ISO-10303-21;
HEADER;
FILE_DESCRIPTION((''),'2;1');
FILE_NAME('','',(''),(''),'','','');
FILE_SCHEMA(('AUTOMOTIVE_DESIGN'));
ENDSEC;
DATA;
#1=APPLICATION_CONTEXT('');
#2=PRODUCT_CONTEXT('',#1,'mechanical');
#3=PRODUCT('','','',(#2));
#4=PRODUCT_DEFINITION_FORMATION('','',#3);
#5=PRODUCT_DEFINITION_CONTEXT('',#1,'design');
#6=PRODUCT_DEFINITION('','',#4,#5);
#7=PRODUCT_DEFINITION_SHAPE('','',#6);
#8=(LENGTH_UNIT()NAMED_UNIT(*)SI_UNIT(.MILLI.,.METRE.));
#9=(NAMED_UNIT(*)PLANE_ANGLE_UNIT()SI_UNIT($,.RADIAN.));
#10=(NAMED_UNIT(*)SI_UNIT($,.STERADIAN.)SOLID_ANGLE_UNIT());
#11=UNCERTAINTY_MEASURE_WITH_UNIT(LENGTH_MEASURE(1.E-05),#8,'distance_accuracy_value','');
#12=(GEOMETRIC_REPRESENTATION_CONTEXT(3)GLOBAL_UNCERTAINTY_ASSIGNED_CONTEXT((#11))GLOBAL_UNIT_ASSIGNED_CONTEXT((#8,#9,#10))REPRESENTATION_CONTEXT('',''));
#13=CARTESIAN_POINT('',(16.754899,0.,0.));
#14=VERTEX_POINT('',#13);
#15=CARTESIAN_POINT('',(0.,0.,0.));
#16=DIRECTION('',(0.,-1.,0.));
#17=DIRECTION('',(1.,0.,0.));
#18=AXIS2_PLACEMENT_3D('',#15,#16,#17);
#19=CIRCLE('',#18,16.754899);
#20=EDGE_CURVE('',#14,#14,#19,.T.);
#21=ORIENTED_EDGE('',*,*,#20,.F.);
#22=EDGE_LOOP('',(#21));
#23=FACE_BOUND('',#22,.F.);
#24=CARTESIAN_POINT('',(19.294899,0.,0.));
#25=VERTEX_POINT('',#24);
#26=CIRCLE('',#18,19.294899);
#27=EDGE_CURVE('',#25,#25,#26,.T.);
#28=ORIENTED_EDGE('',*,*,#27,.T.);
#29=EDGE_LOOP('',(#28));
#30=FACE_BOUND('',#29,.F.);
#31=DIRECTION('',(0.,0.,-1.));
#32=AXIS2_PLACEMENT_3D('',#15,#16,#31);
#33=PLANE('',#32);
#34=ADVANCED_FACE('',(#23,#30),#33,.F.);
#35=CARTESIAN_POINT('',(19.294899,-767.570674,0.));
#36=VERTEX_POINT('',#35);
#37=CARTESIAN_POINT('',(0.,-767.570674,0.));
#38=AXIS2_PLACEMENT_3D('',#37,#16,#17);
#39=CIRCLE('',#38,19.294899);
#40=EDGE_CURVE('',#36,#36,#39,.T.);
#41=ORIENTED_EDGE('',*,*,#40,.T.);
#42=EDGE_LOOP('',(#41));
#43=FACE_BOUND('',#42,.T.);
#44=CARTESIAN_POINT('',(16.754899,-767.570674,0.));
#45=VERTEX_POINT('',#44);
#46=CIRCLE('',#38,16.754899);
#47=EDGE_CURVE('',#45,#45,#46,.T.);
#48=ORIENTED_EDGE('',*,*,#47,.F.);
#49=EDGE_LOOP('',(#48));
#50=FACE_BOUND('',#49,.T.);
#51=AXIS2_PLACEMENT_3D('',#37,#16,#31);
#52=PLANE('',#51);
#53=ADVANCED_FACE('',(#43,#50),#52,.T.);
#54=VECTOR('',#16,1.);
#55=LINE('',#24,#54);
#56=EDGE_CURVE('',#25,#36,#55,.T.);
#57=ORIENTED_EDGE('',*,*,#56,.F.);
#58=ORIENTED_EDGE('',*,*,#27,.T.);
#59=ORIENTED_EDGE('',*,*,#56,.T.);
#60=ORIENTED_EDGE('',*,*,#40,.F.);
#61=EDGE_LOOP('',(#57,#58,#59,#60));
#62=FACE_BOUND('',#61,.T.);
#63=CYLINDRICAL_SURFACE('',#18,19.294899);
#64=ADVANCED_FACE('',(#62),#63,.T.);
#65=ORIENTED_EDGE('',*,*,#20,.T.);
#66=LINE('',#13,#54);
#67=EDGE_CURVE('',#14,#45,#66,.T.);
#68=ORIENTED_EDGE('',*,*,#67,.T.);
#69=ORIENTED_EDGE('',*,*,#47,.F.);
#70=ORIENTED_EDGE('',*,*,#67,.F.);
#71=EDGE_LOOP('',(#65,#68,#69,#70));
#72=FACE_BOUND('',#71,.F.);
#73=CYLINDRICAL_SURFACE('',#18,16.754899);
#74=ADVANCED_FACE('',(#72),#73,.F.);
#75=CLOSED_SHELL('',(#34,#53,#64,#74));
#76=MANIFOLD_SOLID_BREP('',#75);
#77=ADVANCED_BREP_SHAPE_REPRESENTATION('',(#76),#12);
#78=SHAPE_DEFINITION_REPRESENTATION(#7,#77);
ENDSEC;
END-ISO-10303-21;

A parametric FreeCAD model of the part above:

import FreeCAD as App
import Part
import Sketcher
Q = App.Units.Quantity


def faces_at(feature, points):
    """Names of the faces that lie closest to the given points."""
    faces = feature.Shape.Faces
    near = lambda p: min(range(len(faces)), key=lambda i: faces[i].distToShape(Part.Vertex(*p))[0])
    return sorted({f"Face{near(p) + 1}" for p in points})

doc = App.newDocument("Part")
body = doc.addObject("PartDesign::Body", "Body")

sketch1 = body.newObject("Sketcher::SketchObject", "Sketch")
sketch1.AttachmentSupport = (doc.getObject("XZ_Plane"), [""])
sketch1.MapMode = "FlatFace"
sketch1.addGeometry(Part.Circle(App.Vector(0, 0, 0), App.Vector(0, 0, 1), 19), False)
sketch1.addConstraint([
    Sketcher.Constraint("Coincident", 0, 3, -1, 1),
    Sketcher.Constraint("Diameter", 0, 38.589798),
])

sketch2 = body.newObject("Sketcher::SketchObject", "Sketch001")
sketch2.AttachmentSupport = (doc.getObject("XY_Plane"), [""])
sketch2.MapMode = "FlatFace"
sketch2.addGeometry(Part.LineSegment(App.Vector(0, 0, 0), App.Vector(0, -768, 0)), False)
sketch2.addConstraint([
    Sketcher.Constraint("Vertical", 0),
    Sketcher.Constraint("Coincident", 0, 1, -1, 1),
    Sketcher.Constraint("DistanceY", 0, 2, 0, 1, 767.570674),
])
doc.recompute()

additivepipe = body.newObject("PartDesign::AdditivePipe", "AdditivePipe")
additivepipe.Profile = sketch1
additivepipe.Spine = (sketch2, ["Edge1"])
doc.recompute()

thickness = body.newObject("PartDesign::Thickness", "Thickness")
thickness.Base = (additivepipe, faces_at(additivepipe, [(0, -767.571, 0), (0, 0, 0)]))
thickness.Value = Q("0.1 in")
thickness.Reversed = True
thickness.Join = "Arc"

doc.recompute()
